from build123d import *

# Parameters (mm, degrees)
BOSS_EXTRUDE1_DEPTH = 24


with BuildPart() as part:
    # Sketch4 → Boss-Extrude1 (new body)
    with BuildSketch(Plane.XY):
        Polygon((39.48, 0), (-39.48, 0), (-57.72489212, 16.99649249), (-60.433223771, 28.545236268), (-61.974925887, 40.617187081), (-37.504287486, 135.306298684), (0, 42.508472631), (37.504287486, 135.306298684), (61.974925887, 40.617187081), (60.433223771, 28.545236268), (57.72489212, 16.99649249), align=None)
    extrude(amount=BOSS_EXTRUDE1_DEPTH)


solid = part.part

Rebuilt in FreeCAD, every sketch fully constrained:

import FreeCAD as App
import Part
import Sketcher
from FreeCAD import Vector
Q = App.Units.Quantity


def add_polygon(sketch, points):
    """Adds a closed chain of lines whose ends are joined by coincident constraints."""
    first, n = sketch.GeometryCount, len(points)
    for a, b in zip(points, points[1:] + points[:1]):
        sketch.addGeometry(Part.LineSegment(App.Vector(*a, 0), App.Vector(*b, 0)), False)
    for i in range(n):
        sketch.addConstraint(Sketcher.Constraint("Coincident", first + i, 2, first + (i + 1) % n, 1))

doc = App.newDocument("Part")
body = doc.addObject("PartDesign::Body", "Body")

# Sketch on XY plane
sketch1 = body.newObject("Sketcher::SketchObject", "Sketch")
sketch1.AttachmentSupport = (doc.getObject("XY_Plane"), [""])
sketch1.MapMode = "FlatFace"
add_polygon(sketch1, [(-39.48, 0), (39.48, 0), (57.724892, 16.996492), (60.433224, 28.545236), (61.974926, 40.617187), (37.504287, 135.306299), (0, 42.508473), (-37.504287, 135.306299), (-61.974926, 40.617187), (-60.433224, 28.545236), (-57.724892, 16.996492)])  # lines 0-10
sketch1.addConstraint([
    Sketcher.Constraint("Horizontal", 0),
    Sketcher.Constraint("Symmetric", 0, 2, 10, 2, -1, 1),
    Sketcher.Constraint("Symmetric", 4, 2, 6, 2, -2),
    Sketcher.Constraint("Symmetric", 3, 2, 7, 2, -2),
    Sketcher.Constraint("Symmetric", 2, 2, 8, 2, -2),
    Sketcher.Constraint("Symmetric", 1, 2, 9, 2, -2),
    Sketcher.Constraint("PointOnObject", 5, 2, -2),
    Sketcher.Constraint("Distance", 4, Q("97.8 mm")),
    Sketcher.Constraint("DistanceX", 0, 1, 0, 2, Q("78.96 mm")),
    Sketcher.Constraint("Angle", 4, Q("104.49 deg")),
    Sketcher.Constraint("Distance", 5, Q("100.09 mm")),
    Sketcher.Constraint("DistanceY", -1, 1, 4, 2, Q("135.306299 mm")),
    Sketcher.Constraint("DistanceX", 1, 2, 2, 2, Q("2.708332 mm")),
    Sketcher.Constraint("DistanceY", 2, 2, 3, 2, Q("12.071951 mm")),
    Sketcher.Constraint("DistanceY", 1, 2, 5, 2, Q("25.51198 mm")),
    Sketcher.Constraint("DistanceX", 6, 2, 2, 2, Q("97.937511 mm")),
    Sketcher.Constraint("Distance", 1, Q("24.935053 mm")),
])
pad1 = body.newObject("PartDesign::Pad", "Pad")
pad1.Profile = sketch1
pad1.Length = 24

doc.recompute()
